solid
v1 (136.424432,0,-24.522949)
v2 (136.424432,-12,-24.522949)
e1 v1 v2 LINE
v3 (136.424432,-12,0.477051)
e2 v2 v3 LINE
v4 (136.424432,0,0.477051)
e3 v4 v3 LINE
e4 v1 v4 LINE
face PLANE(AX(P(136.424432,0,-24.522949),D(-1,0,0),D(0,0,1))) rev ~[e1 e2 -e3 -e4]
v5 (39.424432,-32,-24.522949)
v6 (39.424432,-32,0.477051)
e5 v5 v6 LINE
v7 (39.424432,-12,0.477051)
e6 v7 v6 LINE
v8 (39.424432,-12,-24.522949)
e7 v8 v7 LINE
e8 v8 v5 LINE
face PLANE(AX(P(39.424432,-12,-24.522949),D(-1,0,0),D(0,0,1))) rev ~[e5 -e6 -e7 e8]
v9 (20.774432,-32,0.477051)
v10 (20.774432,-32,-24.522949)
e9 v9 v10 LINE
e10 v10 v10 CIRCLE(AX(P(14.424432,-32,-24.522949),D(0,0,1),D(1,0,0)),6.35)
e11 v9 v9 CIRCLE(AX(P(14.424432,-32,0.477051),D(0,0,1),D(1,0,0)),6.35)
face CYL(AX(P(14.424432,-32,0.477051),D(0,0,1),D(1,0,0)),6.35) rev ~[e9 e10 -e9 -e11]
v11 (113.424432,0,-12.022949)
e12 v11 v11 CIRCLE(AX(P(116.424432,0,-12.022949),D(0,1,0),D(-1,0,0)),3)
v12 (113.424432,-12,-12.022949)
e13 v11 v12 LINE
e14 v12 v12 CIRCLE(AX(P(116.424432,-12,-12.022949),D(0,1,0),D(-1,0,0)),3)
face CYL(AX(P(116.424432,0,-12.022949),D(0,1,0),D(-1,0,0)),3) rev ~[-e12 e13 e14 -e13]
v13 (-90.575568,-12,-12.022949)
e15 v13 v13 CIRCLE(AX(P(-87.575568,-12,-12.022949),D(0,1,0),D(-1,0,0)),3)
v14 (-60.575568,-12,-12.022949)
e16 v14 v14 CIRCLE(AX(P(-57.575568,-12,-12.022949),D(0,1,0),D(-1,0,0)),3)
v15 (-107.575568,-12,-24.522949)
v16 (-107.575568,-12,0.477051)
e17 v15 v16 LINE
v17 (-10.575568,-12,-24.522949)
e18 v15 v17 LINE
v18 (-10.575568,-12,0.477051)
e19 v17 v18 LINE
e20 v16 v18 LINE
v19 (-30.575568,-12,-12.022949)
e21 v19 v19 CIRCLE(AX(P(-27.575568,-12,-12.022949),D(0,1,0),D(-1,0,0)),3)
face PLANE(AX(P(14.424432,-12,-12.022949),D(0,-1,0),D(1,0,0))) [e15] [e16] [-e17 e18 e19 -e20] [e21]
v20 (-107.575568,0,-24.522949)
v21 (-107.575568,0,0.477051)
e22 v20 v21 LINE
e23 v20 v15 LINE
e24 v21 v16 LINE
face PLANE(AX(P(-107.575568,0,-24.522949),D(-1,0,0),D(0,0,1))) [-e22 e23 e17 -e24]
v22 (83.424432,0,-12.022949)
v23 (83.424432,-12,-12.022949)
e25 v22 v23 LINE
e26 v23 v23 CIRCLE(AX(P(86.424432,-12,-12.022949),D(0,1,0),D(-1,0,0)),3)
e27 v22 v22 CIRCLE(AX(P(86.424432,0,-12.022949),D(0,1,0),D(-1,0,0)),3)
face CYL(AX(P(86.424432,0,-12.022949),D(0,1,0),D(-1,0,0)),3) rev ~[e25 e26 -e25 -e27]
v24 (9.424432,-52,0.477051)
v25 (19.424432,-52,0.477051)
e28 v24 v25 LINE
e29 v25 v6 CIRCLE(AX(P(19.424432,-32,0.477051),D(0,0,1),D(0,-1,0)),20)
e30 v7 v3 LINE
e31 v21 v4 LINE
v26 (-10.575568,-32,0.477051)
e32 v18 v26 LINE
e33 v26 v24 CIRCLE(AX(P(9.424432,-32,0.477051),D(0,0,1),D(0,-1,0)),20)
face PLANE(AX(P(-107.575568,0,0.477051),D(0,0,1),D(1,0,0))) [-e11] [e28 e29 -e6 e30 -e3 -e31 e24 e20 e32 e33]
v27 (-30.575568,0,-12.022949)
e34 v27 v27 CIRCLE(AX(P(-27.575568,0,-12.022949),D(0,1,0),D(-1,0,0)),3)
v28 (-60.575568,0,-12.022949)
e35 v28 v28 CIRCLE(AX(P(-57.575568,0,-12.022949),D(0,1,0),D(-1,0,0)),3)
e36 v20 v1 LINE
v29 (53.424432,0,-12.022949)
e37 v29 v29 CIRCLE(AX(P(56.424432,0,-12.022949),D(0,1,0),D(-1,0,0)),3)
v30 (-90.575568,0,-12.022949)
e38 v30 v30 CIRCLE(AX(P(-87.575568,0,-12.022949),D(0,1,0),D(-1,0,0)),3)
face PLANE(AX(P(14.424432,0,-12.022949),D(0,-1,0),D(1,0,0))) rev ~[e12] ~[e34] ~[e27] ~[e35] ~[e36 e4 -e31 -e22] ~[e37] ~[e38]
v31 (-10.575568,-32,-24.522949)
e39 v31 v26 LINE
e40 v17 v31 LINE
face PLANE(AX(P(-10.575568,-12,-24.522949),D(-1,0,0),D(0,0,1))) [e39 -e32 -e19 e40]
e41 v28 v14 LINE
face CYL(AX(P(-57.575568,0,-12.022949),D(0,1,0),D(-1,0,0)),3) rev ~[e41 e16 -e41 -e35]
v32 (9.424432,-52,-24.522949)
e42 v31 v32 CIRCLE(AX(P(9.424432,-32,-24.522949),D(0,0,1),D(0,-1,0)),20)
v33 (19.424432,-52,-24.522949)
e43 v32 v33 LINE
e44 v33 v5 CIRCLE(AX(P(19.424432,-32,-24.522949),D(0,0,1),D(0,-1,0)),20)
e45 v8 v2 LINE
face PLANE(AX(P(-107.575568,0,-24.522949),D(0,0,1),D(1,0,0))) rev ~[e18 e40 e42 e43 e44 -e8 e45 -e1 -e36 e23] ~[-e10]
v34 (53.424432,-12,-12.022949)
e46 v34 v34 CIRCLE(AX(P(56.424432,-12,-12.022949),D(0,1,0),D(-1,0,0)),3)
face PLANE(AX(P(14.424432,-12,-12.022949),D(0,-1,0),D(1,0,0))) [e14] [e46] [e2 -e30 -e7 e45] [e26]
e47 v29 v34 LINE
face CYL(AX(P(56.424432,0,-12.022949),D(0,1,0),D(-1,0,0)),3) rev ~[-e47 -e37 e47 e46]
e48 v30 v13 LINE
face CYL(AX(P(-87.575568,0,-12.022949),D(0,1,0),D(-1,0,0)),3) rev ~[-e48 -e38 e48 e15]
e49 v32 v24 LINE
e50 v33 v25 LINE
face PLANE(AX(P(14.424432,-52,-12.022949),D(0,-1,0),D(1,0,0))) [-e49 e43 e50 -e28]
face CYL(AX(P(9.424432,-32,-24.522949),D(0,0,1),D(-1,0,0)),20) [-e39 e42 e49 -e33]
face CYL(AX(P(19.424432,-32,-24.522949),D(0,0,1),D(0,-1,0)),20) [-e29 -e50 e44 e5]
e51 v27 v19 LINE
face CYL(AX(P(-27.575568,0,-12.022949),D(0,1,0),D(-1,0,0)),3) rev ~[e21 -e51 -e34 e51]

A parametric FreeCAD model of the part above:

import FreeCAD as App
import Part
import Sketcher

V = App.Vector
Q = App.Units.Quantity


def edges_at(feature, points):
    """Names of the edges that pass closest to the given points."""
    edges = feature.Shape.Edges
    near = lambda p: min(range(len(edges)), key=lambda i: edges[i].distToShape(Part.Vertex(*p))[0])
    return sorted({f"Edge{near(p) + 1}" for p in points})


def add_polygon(sketch, points):
    """Adds a closed chain of lines whose ends are joined by coincident constraints."""
    first, n = sketch.GeometryCount, len(points)
    for a, b in zip(points, points[1:] + points[:1]):
        sketch.addGeometry(Part.LineSegment(App.Vector(*a, 0), App.Vector(*b, 0)), False)
    for i in range(n):
        sketch.addConstraint(Sketcher.Constraint("Coincident", first + i, 2, first + (i + 1) % n, 1))

doc = App.newDocument("Part")
params = doc.addObject("Spreadsheet::Sheet", "Params")
for row, (alias, value) in enumerate([
    ("sketch1_width", "244 mm"),
    ("sketch1_height", "25 mm"),
    ("pad1_length", "12 mm"),
    ("sketch2_width", "50 mm"),
    ("sketch2_height", "25 mm"),
    ("pad2_length", "40 mm"),
    ("sketch3_diameter", "12.7 mm"),
    ("fillet_radius", "20 mm"),
    ("fillet2_radius", "20 mm"),
    ("sketch4_diameter", "6 mm"),
], start=1):
    params.set(f"A{row}", alias)
    params.set(f"B{row}", "=" + value)
    params.setAlias(f"B{row}", alias)

body = doc.addObject("PartDesign::Body", "Body")

# Sketch on XZ plane
sketch1 = doc.addObject("Sketcher::SketchObject", "Sketch")
body.addObject(sketch1)
sketch1.AttachmentSupport = (doc.XZ_Plane, [""])
sketch1.MapMode = "FlatFace"
add_polygon(sketch1, [(-108, 0), (-108, -25), (136, -25), (136, 0)])  # lines 0-3
sketch1.addConstraint([
    Sketcher.Constraint("Vertical", 0),
    Sketcher.Constraint("Horizontal", 1),
    Sketcher.Constraint("Vertical", 2),
    Sketcher.Constraint("Horizontal", 3),
    Sketcher.Constraint("DistanceX", 1, 1, 1, 2, Q("244 mm")),
    Sketcher.Constraint("DistanceY", 0, 2, 0, 1, Q("25 mm")),
    Sketcher.Constraint("DistanceX", 0, 2, -1, 1, Q("107.575568 mm")),
    Sketcher.Constraint("DistanceY", 0, 2, -1, 1, Q("24.522949 mm")),
])
sketch1.setExpression("Constraints[8]", "Params.sketch1_width")
sketch1.setExpression("Constraints[9]", "Params.sketch1_height")
pad1 = doc.addObject("PartDesign::Pad", "Pad")
body.addObject(pad1)
pad1.Profile = sketch1
pad1.setExpression("Length", "Params.pad1_length")

# Sketch on XZ plane
sketch2 = doc.addObject("Sketcher::SketchObject", "Sketch001")
body.addObject(sketch2)
sketch2.AttachmentSupport = (doc.XZ_Plane, [""])
sketch2.MapMode = "FlatFace"
sketch2.AttachmentOffset = App.Placement(V(0, 0, 12), App.Rotation())
add_polygon(sketch2, [(-11, 0), (-11, -25), (39, -25), (39, 0)])  # lines 0-3
sketch2.addConstraint([
    Sketcher.Constraint("Vertical", 0),
    Sketcher.Constraint("Horizontal", 1),
    Sketcher.Constraint("Vertical", 2),
    Sketcher.Constraint("Horizontal", 3),
    Sketcher.Constraint("DistanceX", 1, 1, 1, 2, Q("50 mm")),
    Sketcher.Constraint("DistanceY", 0, 2, 0, 1, Q("25 mm")),
    Sketcher.Constraint("DistanceY", 0, 2, -1, 1, Q("24.522949 mm")),
    Sketcher.Constraint("DistanceX", 0, 2, -1, 1, Q("10.575568 mm")),
])
sketch2.setExpression("Constraints[8]", "Params.sketch2_width")
sketch2.setExpression("Constraints[9]", "Params.sketch2_height")
pad2 = doc.addObject("PartDesign::Pad", "Pad001")
body.addObject(pad2)
pad2.Profile = sketch2
pad2.setExpression("Length", "Params.pad2_length")

# Sketch on XY plane
sketch3 = doc.addObject("Sketcher::SketchObject", "Sketch002")
body.addObject(sketch3)
sketch3.AttachmentSupport = (doc.XY_Plane, [""])
sketch3.MapMode = "FlatFace"
sketch3.AttachmentOffset = App.Placement(V(0, 0, 0.477051), App.Rotation())
sketch3.addGeometry(Part.Circle(V(14, -32, 0), V(0, 0, 1), 6), False)
sketch3.addConstraint([
    Sketcher.Constraint("Diameter", 0, Q("12.7 mm")),
    Sketcher.Constraint("DistanceY", 0, 3, -1, 1, Q("32 mm")),
    Sketcher.Constraint("DistanceX", -1, 1, 0, 3, Q("14.424432 mm")),
])
sketch3.setExpression("Constraints[0]", "Params.sketch3_diameter")
pocket1 = doc.addObject("PartDesign::Pocket", "Pocket")
body.addObject(pocket1)
pocket1.Profile = sketch3
pocket1.Type = "ThroughAll"
doc.recompute()

fillet = doc.addObject("PartDesign::Fillet", "Fillet")
body.addObject(fillet)
fillet.Base = (pocket1, edges_at(pocket1, [(-10.576, -52, -12.023)]))
fillet.setExpression("Radius", "Params.fillet_radius")
doc.recompute()

fillet2 = doc.addObject("PartDesign::Fillet", "Fillet001")
body.addObject(fillet2)
fillet2.Base = (fillet, edges_at(fillet, [(39.424, -52, -12.023)]))
fillet2.setExpression("Radius", "Params.fillet2_radius")

# Sketch on XZ plane
sketch4 = doc.addObject("Sketcher::SketchObject", "Sketch003")
body.addObject(sketch4)
sketch4.AttachmentSupport = (doc.XZ_Plane, [""])
sketch4.MapMode = "FlatFace"
sketch4.addGeometry([
    Part.Circle(V(-87.6, -12, 0), V(0, 0, 1), 3),  # 0
    Part.Circle(V(-57.6, -12, 0), V(0, 0, 1), 3),  # 1
    Part.Circle(V(86.4, -12, 0), V(0, 0, 1), 3),  # 2
    Part.Circle(V(116.4, -12, 0), V(0, 0, 1), 3),  # 3
    Part.Circle(V(56.4, -12, 0), V(0, 0, 1), 3),  # 4
    Part.Circle(V(-27.6, -12, 0), V(0, 0, 1), 3),  # 5
], False)
sketch4.addConstraint([
    Sketcher.Constraint("Equal", 0, 1),
    Sketcher.Constraint("Equal", 1, 2),
    Sketcher.Constraint("Equal", 2, 3),
    Sketcher.Constraint("Equal", 3, 4),
    Sketcher.Constraint("Equal", 4, 5),
    Sketcher.Constraint("Horizontal", 0, 3, 1, 3),
    Sketcher.Constraint("Horizontal", 1, 3, 2, 3),
    Sketcher.Constraint("Horizontal", 2, 3, 3, 3),
    Sketcher.Constraint("Horizontal", 3, 3, 4, 3),
    Sketcher.Constraint("Horizontal", 4, 3, 5, 3),
    Sketcher.Constraint("Diameter", 0, Q("6 mm")),
    Sketcher.Constraint("DistanceX", 0, 3, 1, 3, Q("30 mm")),
    Sketcher.Constraint("DistanceX", 1, 3, 2, 3, Q("144 mm")),
    Sketcher.Constraint("DistanceX", 2, 3, 3, 3, Q("30 mm")),
    Sketcher.Constraint("DistanceX", 4, 3, 2, 3, Q("30 mm")),
    Sketcher.Constraint("DistanceX", 1, 3, 5, 3, Q("30 mm")),
    Sketcher.Constraint("DistanceX", 0, 3, -1, 1, Q("87.575568 mm")),
    Sketcher.Constraint("DistanceY", 0, 3, -1, 1, Q("12.022949 mm")),
])
sketch4.setExpression("Constraints[10]", "Params.sketch4_diameter")
pocket2 = doc.addObject("PartDesign::Pocket", "Pocket001")
body.addObject(pocket2)
pocket2.Profile = sketch4
pocket2.Type = "ThroughAll"
pocket2.Reversed = True

doc.recompute()
